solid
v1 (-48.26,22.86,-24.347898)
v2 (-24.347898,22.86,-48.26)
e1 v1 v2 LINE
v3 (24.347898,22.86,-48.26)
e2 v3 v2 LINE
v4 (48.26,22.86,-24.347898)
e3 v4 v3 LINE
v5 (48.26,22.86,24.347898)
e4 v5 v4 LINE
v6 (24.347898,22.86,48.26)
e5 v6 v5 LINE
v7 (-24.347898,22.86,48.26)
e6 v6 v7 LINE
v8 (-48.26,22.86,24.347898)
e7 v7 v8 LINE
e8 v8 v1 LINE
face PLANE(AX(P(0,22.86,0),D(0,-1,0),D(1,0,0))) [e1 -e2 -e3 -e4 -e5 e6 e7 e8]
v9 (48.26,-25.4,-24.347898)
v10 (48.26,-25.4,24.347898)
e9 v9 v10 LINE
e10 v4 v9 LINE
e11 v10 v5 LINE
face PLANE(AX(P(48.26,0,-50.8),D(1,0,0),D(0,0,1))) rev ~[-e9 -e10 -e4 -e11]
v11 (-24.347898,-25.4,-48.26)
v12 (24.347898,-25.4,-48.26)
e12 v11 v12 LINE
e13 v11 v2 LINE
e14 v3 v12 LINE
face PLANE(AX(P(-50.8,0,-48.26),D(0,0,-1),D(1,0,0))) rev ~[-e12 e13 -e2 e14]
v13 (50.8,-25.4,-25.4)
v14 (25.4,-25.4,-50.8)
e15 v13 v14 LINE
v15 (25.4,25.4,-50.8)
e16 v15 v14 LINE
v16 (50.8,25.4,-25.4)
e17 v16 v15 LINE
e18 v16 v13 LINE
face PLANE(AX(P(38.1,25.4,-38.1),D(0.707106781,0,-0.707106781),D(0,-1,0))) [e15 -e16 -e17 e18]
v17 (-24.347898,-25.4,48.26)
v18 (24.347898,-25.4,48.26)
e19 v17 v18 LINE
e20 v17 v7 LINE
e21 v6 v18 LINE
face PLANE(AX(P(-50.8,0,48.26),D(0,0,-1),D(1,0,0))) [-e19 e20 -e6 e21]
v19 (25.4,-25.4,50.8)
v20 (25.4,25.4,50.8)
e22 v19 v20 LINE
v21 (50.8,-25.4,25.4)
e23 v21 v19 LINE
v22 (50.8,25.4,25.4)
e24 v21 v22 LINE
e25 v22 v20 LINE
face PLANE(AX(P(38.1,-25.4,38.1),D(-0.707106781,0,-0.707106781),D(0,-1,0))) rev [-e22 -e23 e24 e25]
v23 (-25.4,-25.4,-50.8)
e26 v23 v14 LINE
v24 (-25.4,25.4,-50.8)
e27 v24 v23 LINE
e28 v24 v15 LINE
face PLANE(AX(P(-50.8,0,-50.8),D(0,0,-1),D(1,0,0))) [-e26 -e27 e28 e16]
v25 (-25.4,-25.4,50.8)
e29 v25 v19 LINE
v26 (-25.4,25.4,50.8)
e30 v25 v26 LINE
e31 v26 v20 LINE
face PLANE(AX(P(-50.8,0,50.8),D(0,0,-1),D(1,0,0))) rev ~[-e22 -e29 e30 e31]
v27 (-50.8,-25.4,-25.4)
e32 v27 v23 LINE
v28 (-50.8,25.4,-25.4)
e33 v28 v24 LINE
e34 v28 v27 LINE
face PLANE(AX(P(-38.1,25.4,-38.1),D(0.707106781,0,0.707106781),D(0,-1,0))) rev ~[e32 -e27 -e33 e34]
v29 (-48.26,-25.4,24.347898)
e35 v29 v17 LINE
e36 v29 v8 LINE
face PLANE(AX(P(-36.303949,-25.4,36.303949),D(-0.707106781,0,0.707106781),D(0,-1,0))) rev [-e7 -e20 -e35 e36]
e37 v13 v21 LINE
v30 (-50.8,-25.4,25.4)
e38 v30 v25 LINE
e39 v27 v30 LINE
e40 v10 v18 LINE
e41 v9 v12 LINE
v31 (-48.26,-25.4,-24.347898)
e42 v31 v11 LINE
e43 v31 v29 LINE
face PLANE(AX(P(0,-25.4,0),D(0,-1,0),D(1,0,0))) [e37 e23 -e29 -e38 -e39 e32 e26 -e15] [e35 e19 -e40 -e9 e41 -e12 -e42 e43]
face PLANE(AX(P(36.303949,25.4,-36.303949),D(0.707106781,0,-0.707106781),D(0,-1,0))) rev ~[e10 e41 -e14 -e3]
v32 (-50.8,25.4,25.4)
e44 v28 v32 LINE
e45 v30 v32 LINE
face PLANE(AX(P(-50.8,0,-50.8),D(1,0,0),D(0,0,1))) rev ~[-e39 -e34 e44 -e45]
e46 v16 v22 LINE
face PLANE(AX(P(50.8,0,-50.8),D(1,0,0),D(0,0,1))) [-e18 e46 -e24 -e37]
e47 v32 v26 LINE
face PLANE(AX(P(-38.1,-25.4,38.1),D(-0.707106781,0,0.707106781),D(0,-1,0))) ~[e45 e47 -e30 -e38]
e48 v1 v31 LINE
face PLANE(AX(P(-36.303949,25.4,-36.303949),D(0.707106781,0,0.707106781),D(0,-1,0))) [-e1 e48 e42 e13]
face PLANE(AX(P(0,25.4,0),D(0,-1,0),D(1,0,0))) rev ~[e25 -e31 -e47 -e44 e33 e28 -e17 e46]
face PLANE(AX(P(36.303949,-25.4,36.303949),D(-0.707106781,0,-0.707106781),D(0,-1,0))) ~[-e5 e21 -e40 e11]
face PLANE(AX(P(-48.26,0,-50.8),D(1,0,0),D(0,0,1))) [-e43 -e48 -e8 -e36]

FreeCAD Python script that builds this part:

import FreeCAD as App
import Part
import Sketcher
from FreeCAD import Vector
Q = App.Units.Quantity


def edges_at(feature, points):
    """Names of the edges that pass closest to the given points."""
    edges = feature.Shape.Edges
    near = lambda p: min(range(len(edges)), key=lambda i: edges[i].distToShape(Part.Vertex(*p))[0])
    return sorted({f"Edge{near(p) + 1}" for p in points})


def faces_at(feature, points):
    """Names of the faces that lie closest to the given points."""
    faces = feature.Shape.Faces
    near = lambda p: min(range(len(faces)), key=lambda i: faces[i].distToShape(Part.Vertex(*p))[0])
    return sorted({f"Face{near(p) + 1}" for p in points})


def add_polygon(sketch, points):
    """Adds a closed chain of lines whose ends are joined by coincident constraints."""
    first, n = sketch.GeometryCount, len(points)
    for a, b in zip(points, points[1:] + points[:1]):
        sketch.addGeometry(Part.LineSegment(App.Vector(*a, 0), App.Vector(*b, 0)), False)
    for i in range(n):
        sketch.addConstraint(Sketcher.Constraint("Coincident", first + i, 2, first + (i + 1) % n, 1))

doc = App.newDocument("Part")
body = doc.addObject("PartDesign::Body", "Body")

sketch1 = body.newObject("Sketcher::SketchObject", "Sketch")
sketch1.AttachmentSupport = (doc.getObject("XZ_Plane"), [""])
sketch1.MapMode = "FlatFace"
add_polygon(sketch1, [(-50.8, 50.8), (-50.8, -50.8), (50.8, -50.8), (50.8, 50.8)])
sketch1.addConstraint([
    Sketcher.Constraint("Vertical", 0),
    Sketcher.Constraint("Horizontal", 1),
    Sketcher.Constraint("Vertical", 2),
    Sketcher.Constraint("Horizontal", 3),
    Sketcher.Constraint("Symmetric", 0, 2, 2, 2, -1, 1),
    Sketcher.Constraint("Equal", 3, 0),
    Sketcher.Constraint("DistanceX", 1, 1, 1, 2, Q("4 in")),
])
pad1 = body.newObject("PartDesign::Pad", "Pad")
pad1.Profile = sketch1
pad1.Length = Q("2 in")
pad1.Midplane = True
doc.recompute()

chamfer = body.newObject("PartDesign::Chamfer", "Chamfer")
chamfer.Base = (pad1, edges_at(pad1, [
    (-50.8, 0, 50.8),
    (50.8, 0, 50.8),
    (-50.8, 0, -50.8),
    (50.8, 0, -50.8),
]))
chamfer.Size = Q("1 in")
doc.recompute()

thickness = body.newObject("PartDesign::Thickness", "Thickness")
thickness.Base = (chamfer, faces_at(chamfer, [(0, -25.4, 0)]))
thickness.Value = Q("0.1 in")
thickness.Reversed = True
thickness.Join = "Arc"

doc.recompute()
